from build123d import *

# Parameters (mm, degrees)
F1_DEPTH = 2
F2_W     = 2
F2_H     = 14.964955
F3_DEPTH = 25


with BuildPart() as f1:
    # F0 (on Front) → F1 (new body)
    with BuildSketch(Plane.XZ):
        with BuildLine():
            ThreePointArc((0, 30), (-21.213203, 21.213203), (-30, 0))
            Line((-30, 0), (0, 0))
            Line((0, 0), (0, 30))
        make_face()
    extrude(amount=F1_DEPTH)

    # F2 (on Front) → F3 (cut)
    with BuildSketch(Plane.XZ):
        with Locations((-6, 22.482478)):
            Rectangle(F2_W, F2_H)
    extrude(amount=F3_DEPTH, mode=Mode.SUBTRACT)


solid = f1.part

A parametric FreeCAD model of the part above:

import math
import FreeCAD as App
import Part
import Sketcher

V = App.Vector

doc = App.newDocument("Part")
body = doc.addObject("PartDesign::Body", "Body")

sketch1 = doc.addObject("Sketcher::SketchObject", "Sketch")
body.addObject(sketch1)
sketch1.AttachmentSupport = (doc.XZ_Plane, [""])
sketch1.MapMode = "FlatFace"
sketch1.addGeometry(Part.ArcOfCircle(Part.Circle(V(0, 0, 0), V(0, 0, 1), 30), math.radians(90), math.radians(180)), False)
sketch1.addGeometry(Part.LineSegment(V(-30, 0, 0), V(0, 0, 0)), False)
sketch1.addGeometry(Part.LineSegment(V(0, 0, 0), V(0, 30, 0)), False)
sketch1.addConstraint(Sketcher.Constraint("Coincident", 0, 2, 1, 1))
sketch1.addConstraint(Sketcher.Constraint("Coincident", 1, 2, 2, 1))
sketch1.addConstraint(Sketcher.Constraint("Coincident", 2, 2, 0, 1))
sketch1.addConstraint(Sketcher.Constraint("Horizontal", 1))
sketch1.addConstraint(Sketcher.Constraint("Vertical", 2))
sketch1.addConstraint(Sketcher.Constraint("Coincident", 0, 3, -1, 1))
sketch1.addConstraint(Sketcher.Constraint("Coincident", 1, 2, -1, 1))
sketch1.addConstraint(Sketcher.Constraint("Radius", 0, 30.000001))
pad1 = doc.addObject("PartDesign::Pad", "Pad")
body.addObject(pad1)
pad1.Profile = sketch1
pad1.Length = 2

sketch2 = doc.addObject("Sketcher::SketchObject", "Sketch001")
body.addObject(sketch2)
sketch2.AttachmentSupport = (doc.XZ_Plane, [""])
sketch2.MapMode = "FlatFace"
sketch2.addGeometry(Part.LineSegment(V(-7, 30, 0), V(-7, 15, 0)), False)
sketch2.addGeometry(Part.LineSegment(V(-7, 15, 0), V(-5, 15, 0)), False)
sketch2.addGeometry(Part.LineSegment(V(-5, 15, 0), V(-5, 30, 0)), False)
sketch2.addGeometry(Part.LineSegment(V(-5, 30, 0), V(-7, 30, 0)), False)
sketch2.addConstraint(Sketcher.Constraint("Coincident", 0, 2, 1, 1))
sketch2.addConstraint(Sketcher.Constraint("Coincident", 1, 2, 2, 1))
sketch2.addConstraint(Sketcher.Constraint("Coincident", 2, 2, 3, 1))
sketch2.addConstraint(Sketcher.Constraint("Coincident", 3, 2, 0, 1))
sketch2.addConstraint(Sketcher.Constraint("Vertical", 0))
sketch2.addConstraint(Sketcher.Constraint("Horizontal", 1))
sketch2.addConstraint(Sketcher.Constraint("Vertical", 2))
sketch2.addConstraint(Sketcher.Constraint("Horizontal", 3))
sketch2.addConstraint(Sketcher.Constraint("DistanceX", 1, 1, 1, 2, 2.0))
sketch2.addConstraint(Sketcher.Constraint("DistanceX", 0, 2, -1, 1, 7.0))
sketch2.addConstraint(Sketcher.Constraint("DistanceY", -1, 1, 0, 2, 15.000001))
sketch2.addConstraint(Sketcher.Constraint("DistanceY", 0, 2, 0, 1, 14.964955))
pocket1 = doc.addObject("PartDesign::Pocket", "Pocket")
body.addObject(pocket1)
pocket1.Profile = sketch2
pocket1.Length = 25
pocket1.Reversed = True

doc.recompute()
